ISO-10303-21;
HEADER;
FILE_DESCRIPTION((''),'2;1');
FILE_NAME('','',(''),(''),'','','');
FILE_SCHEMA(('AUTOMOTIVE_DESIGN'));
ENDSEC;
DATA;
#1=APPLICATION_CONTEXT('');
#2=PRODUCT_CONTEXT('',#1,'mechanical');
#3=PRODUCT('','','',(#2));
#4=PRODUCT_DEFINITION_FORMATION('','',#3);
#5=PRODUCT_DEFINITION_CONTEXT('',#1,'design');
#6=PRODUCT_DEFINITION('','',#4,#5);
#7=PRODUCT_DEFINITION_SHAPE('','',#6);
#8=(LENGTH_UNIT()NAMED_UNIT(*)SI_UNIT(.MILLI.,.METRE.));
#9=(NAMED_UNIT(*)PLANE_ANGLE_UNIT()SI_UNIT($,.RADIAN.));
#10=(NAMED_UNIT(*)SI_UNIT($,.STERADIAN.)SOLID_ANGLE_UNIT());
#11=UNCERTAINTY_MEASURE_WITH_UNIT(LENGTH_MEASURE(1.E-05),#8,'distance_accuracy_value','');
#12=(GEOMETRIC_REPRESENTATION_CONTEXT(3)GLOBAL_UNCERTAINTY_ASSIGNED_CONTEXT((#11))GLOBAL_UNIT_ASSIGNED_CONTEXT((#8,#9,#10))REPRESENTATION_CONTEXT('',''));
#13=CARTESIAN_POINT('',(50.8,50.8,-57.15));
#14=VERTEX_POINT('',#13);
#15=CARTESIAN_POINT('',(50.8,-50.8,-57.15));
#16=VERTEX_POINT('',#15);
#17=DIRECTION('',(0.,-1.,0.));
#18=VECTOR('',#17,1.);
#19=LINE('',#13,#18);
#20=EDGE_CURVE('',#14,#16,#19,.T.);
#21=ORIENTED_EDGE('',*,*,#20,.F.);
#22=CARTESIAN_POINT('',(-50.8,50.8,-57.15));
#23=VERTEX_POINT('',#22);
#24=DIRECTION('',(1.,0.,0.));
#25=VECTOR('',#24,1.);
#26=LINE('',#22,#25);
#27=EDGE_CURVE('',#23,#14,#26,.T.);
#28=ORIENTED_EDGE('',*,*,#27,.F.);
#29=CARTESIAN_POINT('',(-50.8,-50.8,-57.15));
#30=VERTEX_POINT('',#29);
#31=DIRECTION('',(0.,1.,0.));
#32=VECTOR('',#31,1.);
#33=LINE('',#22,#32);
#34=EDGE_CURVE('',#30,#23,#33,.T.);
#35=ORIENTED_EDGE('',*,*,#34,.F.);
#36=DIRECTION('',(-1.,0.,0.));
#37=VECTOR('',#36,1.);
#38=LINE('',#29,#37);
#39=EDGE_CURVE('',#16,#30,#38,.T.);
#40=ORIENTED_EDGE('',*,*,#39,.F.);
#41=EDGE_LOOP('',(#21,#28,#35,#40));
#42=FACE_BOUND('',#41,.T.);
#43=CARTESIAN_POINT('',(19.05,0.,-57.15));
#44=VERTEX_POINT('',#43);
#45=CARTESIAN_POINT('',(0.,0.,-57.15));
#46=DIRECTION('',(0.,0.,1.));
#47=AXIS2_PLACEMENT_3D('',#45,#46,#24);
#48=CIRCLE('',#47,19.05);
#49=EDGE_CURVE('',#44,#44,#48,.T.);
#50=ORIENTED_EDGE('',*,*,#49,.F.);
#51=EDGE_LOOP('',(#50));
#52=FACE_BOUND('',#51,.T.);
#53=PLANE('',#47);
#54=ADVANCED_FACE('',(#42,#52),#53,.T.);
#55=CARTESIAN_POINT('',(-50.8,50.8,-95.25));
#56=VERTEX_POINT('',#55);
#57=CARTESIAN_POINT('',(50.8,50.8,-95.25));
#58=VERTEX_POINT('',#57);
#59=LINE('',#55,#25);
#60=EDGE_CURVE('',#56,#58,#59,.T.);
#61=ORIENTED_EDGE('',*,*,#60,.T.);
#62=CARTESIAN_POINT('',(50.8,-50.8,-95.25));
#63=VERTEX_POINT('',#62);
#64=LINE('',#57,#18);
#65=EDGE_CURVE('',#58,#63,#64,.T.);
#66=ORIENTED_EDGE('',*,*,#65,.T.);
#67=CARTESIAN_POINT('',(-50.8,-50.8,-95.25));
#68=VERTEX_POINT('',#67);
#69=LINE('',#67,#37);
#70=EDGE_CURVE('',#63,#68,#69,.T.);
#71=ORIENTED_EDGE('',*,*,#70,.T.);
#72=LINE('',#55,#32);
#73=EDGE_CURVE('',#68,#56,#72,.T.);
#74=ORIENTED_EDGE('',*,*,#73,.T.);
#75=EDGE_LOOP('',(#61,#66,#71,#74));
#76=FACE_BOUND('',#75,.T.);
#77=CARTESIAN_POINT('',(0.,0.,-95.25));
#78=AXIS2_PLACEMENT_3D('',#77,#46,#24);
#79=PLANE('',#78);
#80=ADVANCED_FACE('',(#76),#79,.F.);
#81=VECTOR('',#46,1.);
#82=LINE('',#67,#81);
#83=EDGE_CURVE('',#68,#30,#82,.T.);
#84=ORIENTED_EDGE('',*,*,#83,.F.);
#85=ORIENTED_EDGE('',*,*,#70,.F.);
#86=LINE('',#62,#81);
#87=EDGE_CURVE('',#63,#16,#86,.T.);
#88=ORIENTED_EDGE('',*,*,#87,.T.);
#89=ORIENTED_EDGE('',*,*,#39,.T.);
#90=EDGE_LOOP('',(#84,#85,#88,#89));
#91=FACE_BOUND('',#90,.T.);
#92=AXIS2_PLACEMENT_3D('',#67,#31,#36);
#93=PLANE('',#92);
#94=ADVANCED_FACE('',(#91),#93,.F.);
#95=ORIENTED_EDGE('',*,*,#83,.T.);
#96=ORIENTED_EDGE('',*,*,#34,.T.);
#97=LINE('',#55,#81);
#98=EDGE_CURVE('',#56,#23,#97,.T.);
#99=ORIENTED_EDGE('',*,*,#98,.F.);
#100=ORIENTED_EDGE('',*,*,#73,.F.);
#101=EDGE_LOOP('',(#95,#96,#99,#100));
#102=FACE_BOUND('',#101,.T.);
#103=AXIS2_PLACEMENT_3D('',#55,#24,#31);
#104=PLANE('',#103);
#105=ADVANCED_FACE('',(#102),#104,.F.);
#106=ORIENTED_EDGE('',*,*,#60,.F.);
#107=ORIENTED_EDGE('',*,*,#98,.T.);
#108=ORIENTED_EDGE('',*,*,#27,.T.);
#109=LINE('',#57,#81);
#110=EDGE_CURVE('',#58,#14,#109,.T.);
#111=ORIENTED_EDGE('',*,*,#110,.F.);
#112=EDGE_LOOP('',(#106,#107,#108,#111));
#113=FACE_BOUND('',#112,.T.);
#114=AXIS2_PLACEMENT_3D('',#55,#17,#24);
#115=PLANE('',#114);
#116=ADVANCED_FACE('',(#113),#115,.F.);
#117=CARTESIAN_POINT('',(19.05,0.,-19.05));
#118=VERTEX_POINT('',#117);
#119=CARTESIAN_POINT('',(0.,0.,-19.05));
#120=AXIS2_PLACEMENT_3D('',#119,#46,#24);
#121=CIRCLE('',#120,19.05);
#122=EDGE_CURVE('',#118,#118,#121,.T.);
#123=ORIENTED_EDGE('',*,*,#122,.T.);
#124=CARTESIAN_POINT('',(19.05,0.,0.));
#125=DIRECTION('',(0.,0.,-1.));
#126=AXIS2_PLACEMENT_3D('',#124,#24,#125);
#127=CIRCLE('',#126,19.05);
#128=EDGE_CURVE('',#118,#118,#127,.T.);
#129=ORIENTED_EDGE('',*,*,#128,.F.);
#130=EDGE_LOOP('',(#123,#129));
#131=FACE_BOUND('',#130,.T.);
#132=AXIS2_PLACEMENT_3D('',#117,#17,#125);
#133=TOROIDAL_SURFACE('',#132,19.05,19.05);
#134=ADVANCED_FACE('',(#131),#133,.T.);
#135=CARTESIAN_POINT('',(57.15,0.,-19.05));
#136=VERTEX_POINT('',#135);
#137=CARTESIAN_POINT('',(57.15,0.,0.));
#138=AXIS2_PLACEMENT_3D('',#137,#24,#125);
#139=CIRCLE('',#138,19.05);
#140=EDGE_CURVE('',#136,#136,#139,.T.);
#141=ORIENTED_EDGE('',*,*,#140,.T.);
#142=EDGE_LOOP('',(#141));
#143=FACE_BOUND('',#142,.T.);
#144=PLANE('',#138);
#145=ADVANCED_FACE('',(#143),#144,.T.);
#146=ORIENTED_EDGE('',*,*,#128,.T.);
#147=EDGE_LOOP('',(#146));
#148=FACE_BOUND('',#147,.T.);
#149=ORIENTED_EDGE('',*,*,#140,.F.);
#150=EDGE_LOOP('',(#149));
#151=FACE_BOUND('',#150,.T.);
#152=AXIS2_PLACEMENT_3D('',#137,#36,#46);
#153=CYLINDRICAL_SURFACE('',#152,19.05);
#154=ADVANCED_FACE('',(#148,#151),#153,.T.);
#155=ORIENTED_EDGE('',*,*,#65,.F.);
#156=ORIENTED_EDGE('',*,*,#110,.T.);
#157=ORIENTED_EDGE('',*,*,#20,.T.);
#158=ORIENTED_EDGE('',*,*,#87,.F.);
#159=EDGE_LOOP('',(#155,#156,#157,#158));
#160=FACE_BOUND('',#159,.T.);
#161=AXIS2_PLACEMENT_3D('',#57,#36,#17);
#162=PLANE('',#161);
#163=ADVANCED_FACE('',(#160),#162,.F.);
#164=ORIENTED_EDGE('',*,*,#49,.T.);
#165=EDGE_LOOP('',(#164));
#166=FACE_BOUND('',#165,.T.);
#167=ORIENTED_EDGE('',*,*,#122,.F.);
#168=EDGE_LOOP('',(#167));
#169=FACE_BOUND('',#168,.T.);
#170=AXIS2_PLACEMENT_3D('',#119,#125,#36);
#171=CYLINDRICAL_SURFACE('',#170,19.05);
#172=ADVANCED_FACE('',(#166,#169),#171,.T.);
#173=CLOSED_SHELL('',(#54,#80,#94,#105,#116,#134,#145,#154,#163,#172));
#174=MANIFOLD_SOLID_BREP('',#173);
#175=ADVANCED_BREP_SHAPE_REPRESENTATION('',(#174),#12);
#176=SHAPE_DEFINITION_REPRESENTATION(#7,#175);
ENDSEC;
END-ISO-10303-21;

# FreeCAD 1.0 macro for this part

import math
import FreeCAD as App
import Part
import Sketcher
from FreeCAD import Vector
Q = App.Units.Quantity

doc = App.newDocument("Part")
body = doc.addObject("PartDesign::Body", "Body")

sketch1 = doc.addObject("Sketcher::SketchObject", "Sketch")
body.addObject(sketch1)
sketch1.AttachmentSupport = (doc.YZ_Plane, [""])
sketch1.MapMode = "FlatFace"
sketch1.AttachmentOffset = App.Placement(Vector(0, 0, 2.25 * 25.4), App.Rotation())
sketch1.addGeometry(Part.Circle(Vector(0, 0, 0), Vector(0, 0, 1), 19), False)
sketch1.addConstraint(Sketcher.Constraint("Coincident", 0, 3, -1, 1))
sketch1.addConstraint(Sketcher.Constraint("Diameter", 0, Q("1.5 in")))

sketch2 = doc.addObject("Sketcher::SketchObject", "Sketch001")
body.addObject(sketch2)
sketch2.AttachmentSupport = (doc.XZ_Plane, [""])
sketch2.MapMode = "FlatFace"
sketch2.addGeometry(Part.LineSegment(Vector(57, 0, 0), Vector(19, 0, 0)), False)
sketch2.addGeometry(Part.ArcOfCircle(Part.Circle(Vector(19, -19, 0), Vector(0, 0, 1), 19), math.radians(90), math.radians(180)), False)
sketch2.addGeometry(Part.LineSegment(Vector(0, -19, 0), Vector(0, -57, 0)), False)
sketch2.addConstraint(Sketcher.Constraint("Tangent", 0, 2, 1, 1))
sketch2.addConstraint(Sketcher.Constraint("Tangent", 1, 2, 2, 1))
sketch2.addConstraint(Sketcher.Constraint("Horizontal", 0))
sketch2.addConstraint(Sketcher.Constraint("Vertical", 2))
sketch2.addConstraint(Sketcher.Constraint("PointOnObject", 0, 1, -1))
sketch2.addConstraint(Sketcher.Constraint("PointOnObject", 1, 2, -2))
sketch2.addConstraint(Sketcher.Constraint("Equal", 0, 2))
sketch2.addConstraint(Sketcher.Constraint("Radius", 1, Q("0.75 in")))
sketch2.addConstraint(Sketcher.Constraint("DistanceX", 0, 2, 0, 1, Q("1.5 in")))
doc.recompute()

additivepipe = doc.addObject("PartDesign::AdditivePipe", "AdditivePipe")
body.addObject(additivepipe)
additivepipe.Profile = sketch1
additivepipe.Spine = (sketch2, ["Edge1", "Edge2", "Edge3"])

sketch3 = doc.addObject("Sketcher::SketchObject", "Sketch002")
body.addObject(sketch3)
sketch3.AttachmentSupport = (doc.XY_Plane, [""])
sketch3.MapMode = "FlatFace"
sketch3.AttachmentOffset = App.Placement(Vector(0, 0, -2.25 * 25.4), App.Rotation())
sketch3.addGeometry(Part.LineSegment(Vector(51, 51, 0), Vector(51, -51, 0)), False)
sketch3.addGeometry(Part.LineSegment(Vector(51, -51, 0), Vector(-51, -51, 0)), False)
sketch3.addGeometry(Part.LineSegment(Vector(-51, -51, 0), Vector(-51, 51, 0)), False)
sketch3.addGeometry(Part.LineSegment(Vector(-51, 51, 0), Vector(51, 51, 0)), False)
sketch3.addConstraint(Sketcher.Constraint("Coincident", 0, 2, 1, 1))
sketch3.addConstraint(Sketcher.Constraint("Coincident", 1, 2, 2, 1))
sketch3.addConstraint(Sketcher.Constraint("Coincident", 2, 2, 3, 1))
sketch3.addConstraint(Sketcher.Constraint("Coincident", 3, 2, 0, 1))
sketch3.addConstraint(Sketcher.Constraint("Vertical", 0))
sketch3.addConstraint(Sketcher.Constraint("Horizontal", 1))
sketch3.addConstraint(Sketcher.Constraint("Vertical", 2))
sketch3.addConstraint(Sketcher.Constraint("Horizontal", 3))
sketch3.addConstraint(Sketcher.Constraint("Symmetric", 0, 2, 2, 2, -1, 1))
sketch3.addConstraint(Sketcher.Constraint("Equal", 3, 0))
sketch3.addConstraint(Sketcher.Constraint("DistanceX", 1, 2, 1, 1, Q("4 in")))
pad1 = doc.addObject("PartDesign::Pad", "Pad")
body.addObject(pad1)
pad1.Profile = sketch3
pad1.Length = Q("1.5 in")
pad1.Reversed = True

doc.recompute()
